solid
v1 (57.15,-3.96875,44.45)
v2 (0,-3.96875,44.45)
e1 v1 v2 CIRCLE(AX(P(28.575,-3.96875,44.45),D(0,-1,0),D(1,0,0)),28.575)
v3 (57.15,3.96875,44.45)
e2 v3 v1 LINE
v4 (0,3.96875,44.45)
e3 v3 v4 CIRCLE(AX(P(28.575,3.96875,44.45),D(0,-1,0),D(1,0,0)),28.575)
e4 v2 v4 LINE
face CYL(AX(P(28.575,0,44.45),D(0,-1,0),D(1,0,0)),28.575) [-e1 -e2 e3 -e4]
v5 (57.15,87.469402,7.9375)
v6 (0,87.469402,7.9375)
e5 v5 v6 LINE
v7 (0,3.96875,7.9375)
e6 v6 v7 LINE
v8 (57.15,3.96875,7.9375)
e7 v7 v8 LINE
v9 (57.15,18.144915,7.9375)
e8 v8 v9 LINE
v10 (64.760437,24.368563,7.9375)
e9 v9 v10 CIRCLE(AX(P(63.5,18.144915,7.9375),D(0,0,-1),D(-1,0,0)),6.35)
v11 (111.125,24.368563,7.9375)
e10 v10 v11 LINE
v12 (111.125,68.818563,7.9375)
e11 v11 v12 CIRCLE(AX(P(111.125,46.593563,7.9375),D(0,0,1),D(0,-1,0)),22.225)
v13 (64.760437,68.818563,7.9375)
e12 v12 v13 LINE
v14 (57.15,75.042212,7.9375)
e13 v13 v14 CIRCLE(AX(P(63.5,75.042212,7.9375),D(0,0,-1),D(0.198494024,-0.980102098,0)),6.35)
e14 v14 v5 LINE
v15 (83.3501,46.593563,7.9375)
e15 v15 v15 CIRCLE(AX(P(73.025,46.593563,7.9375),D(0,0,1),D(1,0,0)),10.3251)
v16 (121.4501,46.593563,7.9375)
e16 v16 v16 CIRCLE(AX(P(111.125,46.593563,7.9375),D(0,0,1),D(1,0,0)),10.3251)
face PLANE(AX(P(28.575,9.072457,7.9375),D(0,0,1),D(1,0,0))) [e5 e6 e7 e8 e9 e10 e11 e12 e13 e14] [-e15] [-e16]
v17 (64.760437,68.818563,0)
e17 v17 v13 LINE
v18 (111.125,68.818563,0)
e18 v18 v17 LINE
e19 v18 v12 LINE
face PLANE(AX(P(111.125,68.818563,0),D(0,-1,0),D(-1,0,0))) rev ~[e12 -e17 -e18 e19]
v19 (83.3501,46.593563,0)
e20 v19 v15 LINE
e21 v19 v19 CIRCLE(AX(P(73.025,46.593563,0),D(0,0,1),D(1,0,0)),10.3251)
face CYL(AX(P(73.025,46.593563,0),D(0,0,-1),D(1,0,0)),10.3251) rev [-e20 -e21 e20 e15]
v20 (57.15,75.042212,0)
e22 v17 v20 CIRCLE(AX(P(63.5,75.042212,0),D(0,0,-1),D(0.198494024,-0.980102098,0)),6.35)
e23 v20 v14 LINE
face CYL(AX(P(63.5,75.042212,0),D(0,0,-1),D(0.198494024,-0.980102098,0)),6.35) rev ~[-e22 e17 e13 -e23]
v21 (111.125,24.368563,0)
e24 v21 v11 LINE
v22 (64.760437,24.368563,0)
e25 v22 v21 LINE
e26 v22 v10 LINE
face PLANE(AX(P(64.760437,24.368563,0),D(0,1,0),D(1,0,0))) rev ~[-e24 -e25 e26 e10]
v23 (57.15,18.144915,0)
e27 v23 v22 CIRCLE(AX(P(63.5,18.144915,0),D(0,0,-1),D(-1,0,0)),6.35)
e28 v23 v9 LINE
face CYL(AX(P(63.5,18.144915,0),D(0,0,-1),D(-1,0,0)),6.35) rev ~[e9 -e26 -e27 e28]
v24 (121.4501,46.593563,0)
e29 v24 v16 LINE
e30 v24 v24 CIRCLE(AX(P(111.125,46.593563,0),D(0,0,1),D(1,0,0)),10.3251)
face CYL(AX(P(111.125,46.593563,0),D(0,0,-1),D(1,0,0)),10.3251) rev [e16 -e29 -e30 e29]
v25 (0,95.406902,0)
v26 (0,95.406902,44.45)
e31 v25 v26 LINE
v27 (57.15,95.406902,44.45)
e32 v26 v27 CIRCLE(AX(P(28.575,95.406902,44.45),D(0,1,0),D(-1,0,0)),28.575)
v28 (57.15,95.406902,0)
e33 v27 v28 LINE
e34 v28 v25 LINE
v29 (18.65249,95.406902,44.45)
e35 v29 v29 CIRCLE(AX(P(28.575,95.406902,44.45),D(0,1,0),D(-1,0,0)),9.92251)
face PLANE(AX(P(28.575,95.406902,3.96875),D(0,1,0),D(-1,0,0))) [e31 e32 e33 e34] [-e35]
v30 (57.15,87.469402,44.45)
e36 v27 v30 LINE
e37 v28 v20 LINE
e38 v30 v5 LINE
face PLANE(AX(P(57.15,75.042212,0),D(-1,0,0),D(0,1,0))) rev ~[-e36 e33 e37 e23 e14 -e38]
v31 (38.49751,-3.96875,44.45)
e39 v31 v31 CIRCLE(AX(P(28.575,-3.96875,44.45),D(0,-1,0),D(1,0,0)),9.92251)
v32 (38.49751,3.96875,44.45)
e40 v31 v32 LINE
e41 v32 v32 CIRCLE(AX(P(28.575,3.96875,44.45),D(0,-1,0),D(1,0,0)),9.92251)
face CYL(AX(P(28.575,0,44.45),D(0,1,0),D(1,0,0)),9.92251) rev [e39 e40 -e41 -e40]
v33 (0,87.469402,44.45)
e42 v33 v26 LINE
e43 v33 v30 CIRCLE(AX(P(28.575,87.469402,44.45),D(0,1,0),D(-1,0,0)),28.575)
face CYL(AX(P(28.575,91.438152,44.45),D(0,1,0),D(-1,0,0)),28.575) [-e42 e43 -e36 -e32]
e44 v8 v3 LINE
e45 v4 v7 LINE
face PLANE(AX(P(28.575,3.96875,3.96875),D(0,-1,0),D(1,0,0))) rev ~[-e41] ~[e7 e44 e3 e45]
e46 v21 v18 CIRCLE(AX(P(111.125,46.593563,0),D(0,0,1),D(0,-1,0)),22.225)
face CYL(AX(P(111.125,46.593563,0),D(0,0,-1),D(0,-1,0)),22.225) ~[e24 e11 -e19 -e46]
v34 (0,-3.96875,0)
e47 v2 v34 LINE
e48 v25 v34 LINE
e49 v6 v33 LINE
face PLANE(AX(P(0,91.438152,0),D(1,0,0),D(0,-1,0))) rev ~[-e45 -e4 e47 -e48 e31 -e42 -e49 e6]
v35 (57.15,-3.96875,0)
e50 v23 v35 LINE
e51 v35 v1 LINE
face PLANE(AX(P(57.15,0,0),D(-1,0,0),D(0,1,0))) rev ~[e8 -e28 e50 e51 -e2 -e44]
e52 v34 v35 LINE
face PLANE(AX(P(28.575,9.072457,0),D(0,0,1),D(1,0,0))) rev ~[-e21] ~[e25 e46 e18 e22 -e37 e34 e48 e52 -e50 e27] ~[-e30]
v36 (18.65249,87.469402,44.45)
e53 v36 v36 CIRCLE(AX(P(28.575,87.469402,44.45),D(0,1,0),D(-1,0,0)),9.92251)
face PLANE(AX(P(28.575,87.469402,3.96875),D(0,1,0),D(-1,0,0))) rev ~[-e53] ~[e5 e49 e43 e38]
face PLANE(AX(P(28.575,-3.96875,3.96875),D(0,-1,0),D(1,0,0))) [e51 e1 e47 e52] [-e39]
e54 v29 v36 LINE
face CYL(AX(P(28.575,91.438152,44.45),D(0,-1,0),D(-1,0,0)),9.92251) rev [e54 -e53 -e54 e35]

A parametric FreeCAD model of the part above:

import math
import FreeCAD as App
import Part
import Sketcher
from FreeCAD import Vector
Q = App.Units.Quantity

doc = App.newDocument("Part")
params = doc.addObject("Spreadsheet::Sheet", "Params")
for row, (alias, value) in enumerate([
    ("sketch1_radius", "0.25 in"),
    ("sketch1_diameter", "0.813 in"),
    ("sketch1_radius2", "0.875 in"),
    ("sketch1_width", "2.25 in"),
    ("pad1_length", "0.3125 in"),
    ("sketch2_radius", "1.125 in"),
    ("sketch2_height", "1.75 in"),
    ("pad2_length", "0.3125 in"),
    ("sketch3_radius", "1.125 in"),
    ("sketch3_height", "1.75 in"),
    ("pad3_length", "0.3125 in"),
], start=1):
    params.set(f"A{row}", alias)
    params.set(f"B{row}", "=" + value)
    params.setAlias(f"B{row}", alias)

body = doc.addObject("PartDesign::Body", "Body")

sketch1 = body.newObject("Sketcher::SketchObject", "Sketch")
sketch1.AttachmentSupport = (doc.getObject("XY_Plane"), [""])
sketch1.MapMode = "FlatFace"
sketch1.addGeometry([
    Part.LineSegment(Vector(0, 0, 0), Vector(57.15, 0, 0)),
    Part.LineSegment(Vector(57.15, 0, 0), Vector(57.15, 18.144915, 0)),
    Part.ArcOfCircle(Part.Circle(Vector(63.5, 18.144915, 0), Vector(0, 0, 1), 6.35), math.radians(78.551093), math.radians(180)),
    Part.LineSegment(Vector(64.760437, 24.368563, 0), Vector(111.125, 24.368563, 0)),
    Part.ArcOfCircle(Part.Circle(Vector(111.125, 46.593563, 0), Vector(0, 0, 1), 22.225), math.radians(-90), math.radians(90)),
    Part.LineSegment(Vector(111.125, 68.818563, 0), Vector(64.760437, 68.818563, 0)),
    Part.ArcOfCircle(Part.Circle(Vector(63.5, 75.042212, 0), Vector(0, 0, 1), 6.35), math.radians(180), math.radians(281.448907)),
    Part.LineSegment(Vector(57.15, 75.042212, 0), Vector(57.15, 91.438152, 0)),
    Part.LineSegment(Vector(57.15, 91.438152, 0), Vector(0, 91.438152, 0)),
    Part.LineSegment(Vector(0, 91.438152, 0), Vector(0, 0, 0)),
    Part.Circle(Vector(73.025, 46.593563, 0), Vector(0, 0, 1), 10.3251),
    Part.Circle(Vector(111.125, 46.593563, 0), Vector(0, 0, 1), 10.3251),
], False)
sketch1.addConstraint([
    Sketcher.Constraint("Coincident", 0, 2, 1, 1),
    Sketcher.Constraint("Tangent", 1, 2, 2, 2),
    Sketcher.Constraint("Coincident", 2, 1, 3, 1),
    Sketcher.Constraint("Tangent", 3, 2, 4, 1),
    Sketcher.Constraint("Tangent", 4, 2, 5, 1),
    Sketcher.Constraint("Coincident", 5, 2, 6, 2),
    Sketcher.Constraint("Tangent", 6, 1, 7, 1),
    Sketcher.Constraint("Coincident", 7, 2, 8, 1),
    Sketcher.Constraint("Coincident", 8, 2, 9, 1),
    Sketcher.Constraint("Coincident", 9, 2, 0, 1),
    Sketcher.Constraint("Horizontal", 0),
    Sketcher.Constraint("Vertical", 1),
    Sketcher.Constraint("Horizontal", 3),
    Sketcher.Constraint("Horizontal", 5),
    Sketcher.Constraint("Vertical", 7),
    Sketcher.Constraint("Horizontal", 8),
    Sketcher.Constraint("Vertical", 9),
    Sketcher.Constraint("Coincident", 9, 2, -1, 1),
    Sketcher.Constraint("Coincident", 11, 3, 4, 3),
    Sketcher.Constraint("Equal", 2, 6),
    Sketcher.Constraint("Equal", 10, 11),
    Sketcher.Constraint("Horizontal", 4, 3, 10, 3),
    Sketcher.Constraint("Vertical", 2, 3, 6, 3),
    Sketcher.Constraint("Vertical", 2, 1, 5, 2),
    Sketcher.Constraint("Radius", 2, Q("0.25 in")),
    Sketcher.Constraint("Diameter", 10, Q("0.813 in")),
    Sketcher.Constraint("Radius", 4, Q("0.875 in")),
    Sketcher.Constraint("DistanceX", 0, 1, 0, 2, Q("2.25 in")),
    Sketcher.Constraint("DistanceX", 10, 3, 4, 3, Q("1.5 in")),
    Sketcher.Constraint("DistanceX", -1, 1, 4, 3, Q("4.375 in")),
    Sketcher.Constraint("DistanceY", 7, 1, 7, 2, Q("16.39594 mm")),
    Sketcher.Constraint("DistanceY", 9, 2, 9, 1, Q("91.438152 mm")),
    Sketcher.Constraint("DistanceX", 3, 1, 3, 2, Q("46.364563 mm")),
])
sketch1.setExpression("Constraints[24]", "Params.sketch1_radius")
sketch1.setExpression("Constraints[25]", "Params.sketch1_diameter")
sketch1.setExpression("Constraints[26]", "Params.sketch1_radius2")
sketch1.setExpression("Constraints[27]", "Params.sketch1_width")
pad1 = body.newObject("PartDesign::Pad", "Pad")
pad1.Profile = sketch1
pad1.setExpression("Length", "Params.pad1_length")

sketch2 = body.newObject("Sketcher::SketchObject", "Sketch001")
sketch2.AttachmentSupport = (doc.getObject("XZ_Plane"), [""])
sketch2.MapMode = "FlatFace"
sketch2.addGeometry([
    Part.LineSegment(Vector(0, 0, 0), Vector(57.15, 0, 0)),
    Part.LineSegment(Vector(57.15, 0, 0), Vector(57.15, 44.45, 0)),
    Part.ArcOfCircle(Part.Circle(Vector(28.575, 44.45, 0), Vector(0, 0, 1), 28.575), math.radians(0), math.radians(180)),
    Part.LineSegment(Vector(0, 44.45, 0), Vector(0, 0, 0)),
    Part.Circle(Vector(28.575, 44.45, 0), Vector(0, 0, 1), 9.92251),
], False)
sketch2.addConstraint([
    Sketcher.Constraint("Coincident", 0, 2, 1, 1),
    Sketcher.Constraint("Tangent", 1, 2, 2, 1),
    Sketcher.Constraint("Tangent", 2, 2, 3, 1),
    Sketcher.Constraint("Coincident", 3, 2, 0, 1),
    Sketcher.Constraint("Horizontal", 0),
    Sketcher.Constraint("Vertical", 1),
    Sketcher.Constraint("Vertical", 3),
    Sketcher.Constraint("Coincident", 3, 2, -1, 1),
    Sketcher.Constraint("Coincident", 4, 3, 2, 3),
    Sketcher.Constraint("Radius", 2, Q("1.125 in")),
    Sketcher.Constraint("Diameter", 4, Q("0.7813 in")),
    Sketcher.Constraint("DistanceY", 1, 1, 1, 2, Q("1.75 in")),
])
sketch2.setExpression("Constraints[9]", "Params.sketch2_radius")
sketch2.setExpression("Constraints[11]", "Params.sketch2_height")
pad2 = body.newObject("PartDesign::Pad", "Pad001")
pad2.Profile = sketch2
pad2.setExpression("Length", "Params.pad2_length")
pad2.Midplane = True

sketch3 = body.newObject("Sketcher::SketchObject", "Sketch002")
sketch3.AttachmentSupport = (doc.getObject("XZ_Plane"), [""])
sketch3.MapMode = "FlatFace"
sketch3.AttachmentOffset = App.Placement(Vector(0, 0, -91.438152), App.Rotation())
sketch3.addGeometry([
    Part.LineSegment(Vector(57.15, 0, 0), Vector(0, 0, 0)),
    Part.LineSegment(Vector(0, 0, 0), Vector(0, 44.45, 0)),
    Part.ArcOfCircle(Part.Circle(Vector(28.575, 44.45, 0), Vector(0, 0, 1), 28.575), math.radians(0), math.radians(180)),
    Part.LineSegment(Vector(57.15, 44.45, 0), Vector(57.15, 0, 0)),
    Part.Circle(Vector(28.575, 44.45, 0), Vector(0, 0, 1), 9.92251),
], False)
sketch3.addConstraint([
    Sketcher.Constraint("Coincident", 0, 2, 1, 1),
    Sketcher.Constraint("Tangent", 1, 2, 2, 2),
    Sketcher.Constraint("Tangent", 2, 1, 3, 1),
    Sketcher.Constraint("Coincident", 3, 2, 0, 1),
    Sketcher.Constraint("Horizontal", 0),
    Sketcher.Constraint("Vertical", 1),
    Sketcher.Constraint("Vertical", 3),
    Sketcher.Constraint("Coincident", 0, 2, -1, 1),
    Sketcher.Constraint("Coincident", 4, 3, 2, 3),
    Sketcher.Constraint("Radius", 2, Q("1.125 in")),
    Sketcher.Constraint("Diameter", 4, Q("0.7813 in")),
    Sketcher.Constraint("DistanceY", 1, 1, 1, 2, Q("1.75 in")),
])
sketch3.setExpression("Constraints[9]", "Params.sketch3_radius")
sketch3.setExpression("Constraints[11]", "Params.sketch3_height")
pad3 = body.newObject("PartDesign::Pad", "Pad002")
pad3.Profile = sketch3
pad3.setExpression("Length", "Params.pad3_length")
pad3.Midplane = True

doc.recompute()
